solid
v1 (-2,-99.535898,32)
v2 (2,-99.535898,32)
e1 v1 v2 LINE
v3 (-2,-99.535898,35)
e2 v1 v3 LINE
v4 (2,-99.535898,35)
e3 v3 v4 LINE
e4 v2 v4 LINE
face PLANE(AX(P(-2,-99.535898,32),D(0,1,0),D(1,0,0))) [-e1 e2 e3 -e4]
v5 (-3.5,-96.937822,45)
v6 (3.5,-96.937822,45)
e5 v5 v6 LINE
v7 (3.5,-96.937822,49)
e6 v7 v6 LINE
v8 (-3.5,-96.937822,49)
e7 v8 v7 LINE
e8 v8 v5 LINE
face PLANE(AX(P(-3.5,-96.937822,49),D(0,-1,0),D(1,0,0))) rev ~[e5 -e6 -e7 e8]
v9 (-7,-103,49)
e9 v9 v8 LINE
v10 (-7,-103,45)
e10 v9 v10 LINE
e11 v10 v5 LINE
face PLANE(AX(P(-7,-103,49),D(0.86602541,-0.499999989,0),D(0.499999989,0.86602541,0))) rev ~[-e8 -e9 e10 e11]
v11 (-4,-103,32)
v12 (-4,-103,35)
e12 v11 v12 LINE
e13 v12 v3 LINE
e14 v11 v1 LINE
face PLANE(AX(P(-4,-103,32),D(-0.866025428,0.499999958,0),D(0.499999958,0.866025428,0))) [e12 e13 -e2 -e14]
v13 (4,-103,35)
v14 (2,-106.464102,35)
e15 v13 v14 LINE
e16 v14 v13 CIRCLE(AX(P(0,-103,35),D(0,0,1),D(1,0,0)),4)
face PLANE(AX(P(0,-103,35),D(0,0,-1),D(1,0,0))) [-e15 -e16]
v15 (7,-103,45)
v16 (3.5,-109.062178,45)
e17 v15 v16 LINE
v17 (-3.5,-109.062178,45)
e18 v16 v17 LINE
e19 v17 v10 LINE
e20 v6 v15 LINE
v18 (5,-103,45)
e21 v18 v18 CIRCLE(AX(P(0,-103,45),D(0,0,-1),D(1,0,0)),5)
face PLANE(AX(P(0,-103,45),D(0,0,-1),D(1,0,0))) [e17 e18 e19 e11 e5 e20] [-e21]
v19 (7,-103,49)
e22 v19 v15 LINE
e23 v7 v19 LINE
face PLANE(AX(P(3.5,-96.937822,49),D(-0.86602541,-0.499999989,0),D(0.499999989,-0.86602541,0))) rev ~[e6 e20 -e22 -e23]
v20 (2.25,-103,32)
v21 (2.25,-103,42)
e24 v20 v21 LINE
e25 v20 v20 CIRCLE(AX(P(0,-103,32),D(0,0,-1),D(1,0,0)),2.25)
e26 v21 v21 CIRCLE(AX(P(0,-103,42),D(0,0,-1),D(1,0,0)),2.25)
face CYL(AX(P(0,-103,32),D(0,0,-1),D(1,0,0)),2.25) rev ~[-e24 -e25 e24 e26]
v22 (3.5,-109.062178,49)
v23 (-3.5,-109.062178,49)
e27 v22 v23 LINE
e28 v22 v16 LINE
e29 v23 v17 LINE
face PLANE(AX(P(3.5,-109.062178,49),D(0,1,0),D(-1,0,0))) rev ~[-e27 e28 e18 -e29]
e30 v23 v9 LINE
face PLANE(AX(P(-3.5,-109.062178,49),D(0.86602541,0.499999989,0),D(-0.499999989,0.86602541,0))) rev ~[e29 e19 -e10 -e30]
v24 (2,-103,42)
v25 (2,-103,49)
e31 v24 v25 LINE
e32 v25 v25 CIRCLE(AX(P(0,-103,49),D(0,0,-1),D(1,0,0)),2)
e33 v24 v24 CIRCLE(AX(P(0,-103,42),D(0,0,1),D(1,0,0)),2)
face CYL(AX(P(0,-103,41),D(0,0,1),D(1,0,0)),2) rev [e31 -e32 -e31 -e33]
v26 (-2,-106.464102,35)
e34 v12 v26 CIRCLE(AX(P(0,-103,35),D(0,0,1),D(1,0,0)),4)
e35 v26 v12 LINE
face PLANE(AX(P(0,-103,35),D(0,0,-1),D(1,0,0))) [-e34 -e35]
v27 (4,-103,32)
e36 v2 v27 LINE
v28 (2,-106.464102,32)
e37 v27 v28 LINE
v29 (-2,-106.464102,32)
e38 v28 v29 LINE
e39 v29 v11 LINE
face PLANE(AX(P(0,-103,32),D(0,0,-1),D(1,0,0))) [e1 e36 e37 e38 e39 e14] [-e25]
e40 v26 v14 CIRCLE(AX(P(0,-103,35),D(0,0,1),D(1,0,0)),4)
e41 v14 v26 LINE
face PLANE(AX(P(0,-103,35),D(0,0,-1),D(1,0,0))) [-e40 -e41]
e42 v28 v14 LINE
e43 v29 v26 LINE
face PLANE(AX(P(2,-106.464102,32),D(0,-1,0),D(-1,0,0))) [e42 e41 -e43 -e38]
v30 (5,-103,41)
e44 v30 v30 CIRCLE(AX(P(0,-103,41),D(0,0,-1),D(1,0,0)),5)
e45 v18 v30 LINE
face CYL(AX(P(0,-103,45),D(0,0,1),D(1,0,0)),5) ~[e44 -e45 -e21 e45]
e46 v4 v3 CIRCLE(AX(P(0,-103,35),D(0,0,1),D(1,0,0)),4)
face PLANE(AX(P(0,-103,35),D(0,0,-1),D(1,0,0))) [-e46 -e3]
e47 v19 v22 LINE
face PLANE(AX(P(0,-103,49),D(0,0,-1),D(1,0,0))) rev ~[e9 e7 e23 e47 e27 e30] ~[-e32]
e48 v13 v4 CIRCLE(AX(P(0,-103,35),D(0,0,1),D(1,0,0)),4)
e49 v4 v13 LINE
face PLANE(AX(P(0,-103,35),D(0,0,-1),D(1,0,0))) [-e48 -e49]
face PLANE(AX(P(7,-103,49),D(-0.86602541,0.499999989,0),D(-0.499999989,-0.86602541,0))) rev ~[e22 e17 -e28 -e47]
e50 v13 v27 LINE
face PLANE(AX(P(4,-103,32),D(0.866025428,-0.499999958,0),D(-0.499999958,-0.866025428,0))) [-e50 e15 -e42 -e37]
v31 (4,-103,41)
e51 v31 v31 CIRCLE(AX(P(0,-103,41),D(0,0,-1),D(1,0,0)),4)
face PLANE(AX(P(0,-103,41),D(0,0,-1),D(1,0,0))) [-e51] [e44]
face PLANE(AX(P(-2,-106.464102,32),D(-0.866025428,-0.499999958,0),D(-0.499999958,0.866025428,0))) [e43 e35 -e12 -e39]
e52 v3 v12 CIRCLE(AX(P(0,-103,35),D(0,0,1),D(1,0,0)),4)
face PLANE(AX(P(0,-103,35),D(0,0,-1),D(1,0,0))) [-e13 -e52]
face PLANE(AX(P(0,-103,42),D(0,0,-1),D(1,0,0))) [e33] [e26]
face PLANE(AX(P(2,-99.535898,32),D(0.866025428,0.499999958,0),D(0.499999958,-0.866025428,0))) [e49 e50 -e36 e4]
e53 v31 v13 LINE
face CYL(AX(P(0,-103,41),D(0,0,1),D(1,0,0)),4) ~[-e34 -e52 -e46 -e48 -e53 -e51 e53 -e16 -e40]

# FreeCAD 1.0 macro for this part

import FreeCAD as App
import Part
import Sketcher
Q = App.Units.Quantity

doc = App.newDocument("Part")
params = doc.addObject("Spreadsheet::Sheet", "Params")
for row, (alias, value) in enumerate([
    ("sketch1_diameter", "4 mm"),
    ("sketch1_width", "7 mm"),
    ("sketch1_length", "7 mm"),
    ("pad1_length", "4 mm"),
    ("sketch2_diameter", "10 mm"),
    ("sketch2_diameter2", "4 mm"),
    ("pad2_length", "4 mm"),
    ("sketch3_diameter", "8 mm"),
    ("sketch3_diameter2", "4 mm"),
    ("pad3_length", "9 mm"),
    ("sketch4_diameter", "4.5 mm"),
    ("pocket1_length", "10 mm"),
    ("sketch5_diameter", "10 mm"),
    ("sketch5_width", "4 mm"),
    ("sketch5_length", "4 mm"),
    ("pocket2_length", "3 mm"),
], start=1):
    params.set(f"A{row}", alias)
    params.set(f"B{row}", "=" + value)
    params.setAlias(f"B{row}", alias)

body = doc.addObject("PartDesign::Body", "Body")

# Sketch on XZ plane
sketch1 = doc.addObject("Sketcher::SketchObject", "Sketch")
body.addObject(sketch1)
sketch1.AttachmentSupport = (doc.XZ_Plane, [""])
sketch1.MapMode = "FlatFace"
sketch1.addGeometry(Part.LineSegment(App.Vector(7, 0, 0), App.Vector(3.5, 6.1, 0)), False)
sketch1.addGeometry(Part.LineSegment(App.Vector(3.5, 6.1, 0), App.Vector(-3.5, 6.1, 0)), False)
sketch1.addGeometry(Part.LineSegment(App.Vector(-3.5, 6.1, 0), App.Vector(-7, 0, 0)), False)
sketch1.addGeometry(Part.LineSegment(App.Vector(-7, 0, 0), App.Vector(-3.5, -6.1, 0)), False)
sketch1.addGeometry(Part.LineSegment(App.Vector(-3.5, -6.1, 0), App.Vector(3.5, -6.1, 0)), False)
sketch1.addGeometry(Part.LineSegment(App.Vector(3.5, -6.1, 0), App.Vector(7, 0, 0)), False)
sketch1.addGeometry(Part.Circle(App.Vector(0, 0, 0), App.Vector(0, 0, 1), 2), False)
sketch1.addConstraint(Sketcher.Constraint("Coincident", 0, 2, 1, 1))
sketch1.addConstraint(Sketcher.Constraint("Coincident", 1, 2, 2, 1))
sketch1.addConstraint(Sketcher.Constraint("Coincident", 2, 2, 3, 1))
sketch1.addConstraint(Sketcher.Constraint("Coincident", 3, 2, 4, 1))
sketch1.addConstraint(Sketcher.Constraint("Coincident", 4, 2, 5, 1))
sketch1.addConstraint(Sketcher.Constraint("Coincident", 5, 2, 0, 1))
sketch1.addConstraint(Sketcher.Constraint("Horizontal", 1))
sketch1.addConstraint(Sketcher.Constraint("Horizontal", 4))
sketch1.addConstraint(Sketcher.Constraint("Coincident", 6, 3, -1, 1))
sketch1.addConstraint(Sketcher.Constraint("Symmetric", 0, 2, 3, 2, -1, 1))
sketch1.addConstraint(Sketcher.Constraint("Symmetric", 2, 2, 5, 2, -1, 1))
sketch1.addConstraint(Sketcher.Constraint("PointOnObject", 2, 2, -1))
sketch1.addConstraint(Sketcher.Constraint("Parallel", 2, 5))
sketch1.addConstraint(Sketcher.Constraint("Vertical", 1, 2, 3, 2))
sketch1.addConstraint(Sketcher.Constraint("Diameter", 6, Q("4 mm")))
sketch1.addConstraint(Sketcher.Constraint("DistanceX", 1, 2, 1, 1, Q("7 mm")))
sketch1.addConstraint(Sketcher.Constraint("Angle", 0, Q("119.999999 deg")))
sketch1.addConstraint(Sketcher.Constraint("Distance", 0, Q("7 mm")))
sketch1.setExpression("Constraints[14]", "Params.sketch1_diameter")
sketch1.setExpression("Constraints[15]", "Params.sketch1_width")
sketch1.setExpression("Constraints[17]", "Params.sketch1_length")
pad1 = doc.addObject("PartDesign::Pad", "Pad")
body.addObject(pad1)
pad1.Profile = sketch1
pad1.setExpression("Length", "Params.pad1_length")

# Sketch on XZ plane
sketch2 = doc.addObject("Sketcher::SketchObject", "Sketch001")
body.addObject(sketch2)
sketch2.AttachmentSupport = (doc.XZ_Plane, [""])
sketch2.MapMode = "FlatFace"
sketch2.AttachmentOffset = App.Placement(App.Vector(0, 0, 4), App.Rotation())
sketch2.addGeometry(Part.Circle(App.Vector(0, 0, 0), App.Vector(0, 0, 1), 5), False)
sketch2.addGeometry(Part.Circle(App.Vector(0, 0, 0), App.Vector(0, 0, 1), 2), False)
sketch2.addConstraint(Sketcher.Constraint("Coincident", 0, 3, -1, 1))
sketch2.addConstraint(Sketcher.Constraint("Coincident", 1, 3, -1, 1))
sketch2.addConstraint(Sketcher.Constraint("Diameter", 0, Q("10 mm")))
sketch2.addConstraint(Sketcher.Constraint("Diameter", 1, Q("4 mm")))
sketch2.setExpression("Constraints[2]", "Params.sketch2_diameter")
sketch2.setExpression("Constraints[3]", "Params.sketch2_diameter2")
pad2 = doc.addObject("PartDesign::Pad", "Pad001")
body.addObject(pad2)
pad2.Profile = sketch2
pad2.setExpression("Length", "Params.pad2_length")

# Sketch on XZ plane
sketch3 = doc.addObject("Sketcher::SketchObject", "Sketch002")
body.addObject(sketch3)
sketch3.AttachmentSupport = (doc.XZ_Plane, [""])
sketch3.MapMode = "FlatFace"
sketch3.AttachmentOffset = App.Placement(App.Vector(0, 0, 8), App.Rotation())
sketch3.addGeometry(Part.Circle(App.Vector(0, 0, 0), App.Vector(0, 0, 1), 4), False)
sketch3.addGeometry(Part.Circle(App.Vector(0, 0, 0), App.Vector(0, 0, 1), 2), False)
sketch3.addConstraint(Sketcher.Constraint("Coincident", 0, 3, -1, 1))
sketch3.addConstraint(Sketcher.Constraint("Coincident", 1, 3, -1, 1))
sketch3.addConstraint(Sketcher.Constraint("Diameter", 0, Q("8 mm")))
sketch3.addConstraint(Sketcher.Constraint("Diameter", 1, Q("4 mm")))
sketch3.setExpression("Constraints[2]", "Params.sketch3_diameter")
sketch3.setExpression("Constraints[3]", "Params.sketch3_diameter2")
pad3 = doc.addObject("PartDesign::Pad", "Pad002")
body.addObject(pad3)
pad3.Profile = sketch3
pad3.setExpression("Length", "Params.pad3_length")

# Sketch on XZ plane
sketch4 = doc.addObject("Sketcher::SketchObject", "Sketch003")
body.addObject(sketch4)
sketch4.AttachmentSupport = (doc.XZ_Plane, [""])
sketch4.MapMode = "FlatFace"
sketch4.AttachmentOffset = App.Placement(App.Vector(0, 0, 17), App.Rotation())
sketch4.addGeometry(Part.Circle(App.Vector(0, 0, 0), App.Vector(0, 0, 1), 2.2), False)
sketch4.addConstraint(Sketcher.Constraint("Coincident", 0, 3, -1, 1))
sketch4.addConstraint(Sketcher.Constraint("Diameter", 0, Q("4.5 mm")))
sketch4.setExpression("Constraints[1]", "Params.sketch4_diameter")
pocket1 = doc.addObject("PartDesign::Pocket", "Pocket")
body.addObject(pocket1)
pocket1.Profile = sketch4
pocket1.setExpression("Length", "Params.pocket1_length")

# Sketch on XZ plane
sketch5 = doc.addObject("Sketcher::SketchObject", "Sketch004")
body.addObject(sketch5)
sketch5.AttachmentSupport = (doc.XZ_Plane, [""])
sketch5.MapMode = "FlatFace"
sketch5.AttachmentOffset = App.Placement(App.Vector(0, 0, 17), App.Rotation())
sketch5.addGeometry(Part.Circle(App.Vector(0, 0, 0), App.Vector(0, 0, 1), 5), False)
sketch5.addGeometry(Part.LineSegment(App.Vector(2, 3.5, 0), App.Vector(4, 0, 0)), False)
sketch5.addGeometry(Part.LineSegment(App.Vector(4, 0, 0), App.Vector(2, -3.5, 0)), False)
sketch5.addGeometry(Part.LineSegment(App.Vector(2, -3.5, 0), App.Vector(-2, -3.5, 0)), False)
sketch5.addGeometry(Part.LineSegment(App.Vector(-2, -3.5, 0), App.Vector(-4, 0, 0)), False)
sketch5.addGeometry(Part.LineSegment(App.Vector(-4, 0, 0), App.Vector(-2, 3.5, 0)), False)
sketch5.addGeometry(Part.LineSegment(App.Vector(-2, 3.5, 0), App.Vector(2, 3.5, 0)), False)
sketch5.addConstraint(Sketcher.Constraint("Coincident", 1, 2, 2, 1))
sketch5.addConstraint(Sketcher.Constraint("Coincident", 2, 2, 3, 1))
sketch5.addConstraint(Sketcher.Constraint("Coincident", 3, 2, 4, 1))
sketch5.addConstraint(Sketcher.Constraint("Coincident", 4, 2, 5, 1))
sketch5.addConstraint(Sketcher.Constraint("Coincident", 5, 2, 6, 1))
sketch5.addConstraint(Sketcher.Constraint("Coincident", 6, 2, 1, 1))
sketch5.addConstraint(Sketcher.Constraint("Horizontal", 3))
sketch5.addConstraint(Sketcher.Constraint("Horizontal", 6))
sketch5.addConstraint(Sketcher.Constraint("Coincident", 0, 3, -1, 1))
sketch5.addConstraint(Sketcher.Constraint("Symmetric", 1, 2, 4, 2, -1, 1))
sketch5.addConstraint(Sketcher.Constraint("Symmetric", 2, 2, 5, 2, -1, 1))
sketch5.addConstraint(Sketcher.Constraint("PointOnObject", 1, 2, -1))
sketch5.addConstraint(Sketcher.Constraint("Parallel", 1, 4))
sketch5.addConstraint(Sketcher.Constraint("Vertical", 3, 2, 5, 2))
sketch5.addConstraint(Sketcher.Constraint("Diameter", 0, Q("10 mm")))
sketch5.addConstraint(Sketcher.Constraint("DistanceX", 3, 2, 3, 1, Q("4 mm")))
sketch5.addConstraint(Sketcher.Constraint("Angle", 1, Q("-60.000003 deg")))
sketch5.addConstraint(Sketcher.Constraint("Distance", 1, Q("4 mm")))
sketch5.setExpression("Constraints[14]", "Params.sketch5_diameter")
sketch5.setExpression("Constraints[15]", "Params.sketch5_width")
sketch5.setExpression("Constraints[17]", "Params.sketch5_length")
pocket2 = doc.addObject("PartDesign::Pocket", "Pocket001")
body.addObject(pocket2)
pocket2.Profile = sketch5
pocket2.setExpression("Length", "Params.pocket2_length")
body2 = doc.addObject("PartDesign::Body", "Body001")
doc.recompute()

body.Placement = App.Placement(App.Vector(0, -103, 49), App.Rotation(App.Vector(1, 0, 0), 90))
boolean = doc.addObject("PartDesign::Boolean", "Boolean")
body2.addObject(boolean)
boolean.Type = "Fuse"
boolean.addObjects([body])

doc.recompute()
